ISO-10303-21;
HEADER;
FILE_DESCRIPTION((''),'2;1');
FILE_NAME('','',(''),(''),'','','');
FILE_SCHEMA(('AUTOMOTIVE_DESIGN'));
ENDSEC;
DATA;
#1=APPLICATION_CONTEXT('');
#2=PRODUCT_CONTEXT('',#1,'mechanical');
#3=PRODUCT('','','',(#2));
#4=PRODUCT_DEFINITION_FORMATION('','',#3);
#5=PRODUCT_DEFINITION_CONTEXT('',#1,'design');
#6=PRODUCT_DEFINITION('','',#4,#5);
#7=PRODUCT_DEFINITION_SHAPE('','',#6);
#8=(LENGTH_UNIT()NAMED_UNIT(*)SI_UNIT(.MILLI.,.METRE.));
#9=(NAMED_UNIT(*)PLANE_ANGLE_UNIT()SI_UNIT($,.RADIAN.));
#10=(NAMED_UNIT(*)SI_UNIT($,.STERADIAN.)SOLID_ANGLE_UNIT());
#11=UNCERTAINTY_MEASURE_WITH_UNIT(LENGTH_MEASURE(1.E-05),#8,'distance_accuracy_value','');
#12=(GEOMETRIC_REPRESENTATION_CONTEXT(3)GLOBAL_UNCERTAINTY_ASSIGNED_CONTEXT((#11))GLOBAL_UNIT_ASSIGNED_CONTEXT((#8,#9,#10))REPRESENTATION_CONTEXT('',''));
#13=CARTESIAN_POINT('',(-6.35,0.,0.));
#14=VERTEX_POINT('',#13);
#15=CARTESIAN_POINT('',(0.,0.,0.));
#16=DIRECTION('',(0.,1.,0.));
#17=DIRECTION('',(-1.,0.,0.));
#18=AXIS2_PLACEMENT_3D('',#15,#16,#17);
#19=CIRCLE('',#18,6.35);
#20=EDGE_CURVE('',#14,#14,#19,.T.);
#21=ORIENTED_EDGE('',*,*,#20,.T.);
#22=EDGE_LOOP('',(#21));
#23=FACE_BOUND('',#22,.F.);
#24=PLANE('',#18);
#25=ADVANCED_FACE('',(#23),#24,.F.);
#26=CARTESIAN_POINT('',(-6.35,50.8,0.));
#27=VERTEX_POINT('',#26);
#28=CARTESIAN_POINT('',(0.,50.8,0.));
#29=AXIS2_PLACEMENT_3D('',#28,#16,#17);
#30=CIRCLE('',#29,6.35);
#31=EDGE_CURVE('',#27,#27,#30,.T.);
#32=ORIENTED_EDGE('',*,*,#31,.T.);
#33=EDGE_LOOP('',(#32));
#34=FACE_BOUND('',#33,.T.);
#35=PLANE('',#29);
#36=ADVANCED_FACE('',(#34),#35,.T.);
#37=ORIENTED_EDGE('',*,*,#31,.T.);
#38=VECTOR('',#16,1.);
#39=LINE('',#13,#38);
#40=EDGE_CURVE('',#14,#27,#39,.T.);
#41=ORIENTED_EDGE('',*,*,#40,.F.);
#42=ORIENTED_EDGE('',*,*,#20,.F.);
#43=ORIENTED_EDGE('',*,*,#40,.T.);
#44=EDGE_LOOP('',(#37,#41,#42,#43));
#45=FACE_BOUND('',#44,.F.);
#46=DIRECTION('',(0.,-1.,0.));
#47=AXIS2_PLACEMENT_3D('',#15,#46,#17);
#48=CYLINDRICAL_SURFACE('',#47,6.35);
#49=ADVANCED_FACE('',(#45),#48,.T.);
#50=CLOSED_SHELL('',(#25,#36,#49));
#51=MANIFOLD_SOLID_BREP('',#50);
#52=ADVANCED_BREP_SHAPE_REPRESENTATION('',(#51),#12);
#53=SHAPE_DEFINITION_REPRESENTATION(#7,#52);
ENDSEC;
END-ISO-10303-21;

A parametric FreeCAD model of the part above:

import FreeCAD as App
import Part
import Sketcher

V = App.Vector
Q = App.Units.Quantity

doc = App.newDocument("Part")
body = doc.addObject("PartDesign::Body", "Body")

# Sketch on XZ plane
sketch1 = body.newObject("Sketcher::SketchObject", "Sketch")
sketch1.AttachmentSupport = (doc.getObject("XZ_Plane"), [""])
sketch1.MapMode = "FlatFace"
sketch1.addGeometry(Part.Circle(V(0, 0, 0), V(0, 0, 1), 6.35), False)
sketch1.addConstraint(Sketcher.Constraint("Coincident", 0, 3, -1, 1))
sketch1.addConstraint(Sketcher.Constraint("Diameter", 0, Q("0.5 in")))
pad1 = body.newObject("PartDesign::Pad", "Pad")
pad1.Profile = sketch1
pad1.Length = Q("2 in")
pad1.Reversed = True

doc.recompute()
